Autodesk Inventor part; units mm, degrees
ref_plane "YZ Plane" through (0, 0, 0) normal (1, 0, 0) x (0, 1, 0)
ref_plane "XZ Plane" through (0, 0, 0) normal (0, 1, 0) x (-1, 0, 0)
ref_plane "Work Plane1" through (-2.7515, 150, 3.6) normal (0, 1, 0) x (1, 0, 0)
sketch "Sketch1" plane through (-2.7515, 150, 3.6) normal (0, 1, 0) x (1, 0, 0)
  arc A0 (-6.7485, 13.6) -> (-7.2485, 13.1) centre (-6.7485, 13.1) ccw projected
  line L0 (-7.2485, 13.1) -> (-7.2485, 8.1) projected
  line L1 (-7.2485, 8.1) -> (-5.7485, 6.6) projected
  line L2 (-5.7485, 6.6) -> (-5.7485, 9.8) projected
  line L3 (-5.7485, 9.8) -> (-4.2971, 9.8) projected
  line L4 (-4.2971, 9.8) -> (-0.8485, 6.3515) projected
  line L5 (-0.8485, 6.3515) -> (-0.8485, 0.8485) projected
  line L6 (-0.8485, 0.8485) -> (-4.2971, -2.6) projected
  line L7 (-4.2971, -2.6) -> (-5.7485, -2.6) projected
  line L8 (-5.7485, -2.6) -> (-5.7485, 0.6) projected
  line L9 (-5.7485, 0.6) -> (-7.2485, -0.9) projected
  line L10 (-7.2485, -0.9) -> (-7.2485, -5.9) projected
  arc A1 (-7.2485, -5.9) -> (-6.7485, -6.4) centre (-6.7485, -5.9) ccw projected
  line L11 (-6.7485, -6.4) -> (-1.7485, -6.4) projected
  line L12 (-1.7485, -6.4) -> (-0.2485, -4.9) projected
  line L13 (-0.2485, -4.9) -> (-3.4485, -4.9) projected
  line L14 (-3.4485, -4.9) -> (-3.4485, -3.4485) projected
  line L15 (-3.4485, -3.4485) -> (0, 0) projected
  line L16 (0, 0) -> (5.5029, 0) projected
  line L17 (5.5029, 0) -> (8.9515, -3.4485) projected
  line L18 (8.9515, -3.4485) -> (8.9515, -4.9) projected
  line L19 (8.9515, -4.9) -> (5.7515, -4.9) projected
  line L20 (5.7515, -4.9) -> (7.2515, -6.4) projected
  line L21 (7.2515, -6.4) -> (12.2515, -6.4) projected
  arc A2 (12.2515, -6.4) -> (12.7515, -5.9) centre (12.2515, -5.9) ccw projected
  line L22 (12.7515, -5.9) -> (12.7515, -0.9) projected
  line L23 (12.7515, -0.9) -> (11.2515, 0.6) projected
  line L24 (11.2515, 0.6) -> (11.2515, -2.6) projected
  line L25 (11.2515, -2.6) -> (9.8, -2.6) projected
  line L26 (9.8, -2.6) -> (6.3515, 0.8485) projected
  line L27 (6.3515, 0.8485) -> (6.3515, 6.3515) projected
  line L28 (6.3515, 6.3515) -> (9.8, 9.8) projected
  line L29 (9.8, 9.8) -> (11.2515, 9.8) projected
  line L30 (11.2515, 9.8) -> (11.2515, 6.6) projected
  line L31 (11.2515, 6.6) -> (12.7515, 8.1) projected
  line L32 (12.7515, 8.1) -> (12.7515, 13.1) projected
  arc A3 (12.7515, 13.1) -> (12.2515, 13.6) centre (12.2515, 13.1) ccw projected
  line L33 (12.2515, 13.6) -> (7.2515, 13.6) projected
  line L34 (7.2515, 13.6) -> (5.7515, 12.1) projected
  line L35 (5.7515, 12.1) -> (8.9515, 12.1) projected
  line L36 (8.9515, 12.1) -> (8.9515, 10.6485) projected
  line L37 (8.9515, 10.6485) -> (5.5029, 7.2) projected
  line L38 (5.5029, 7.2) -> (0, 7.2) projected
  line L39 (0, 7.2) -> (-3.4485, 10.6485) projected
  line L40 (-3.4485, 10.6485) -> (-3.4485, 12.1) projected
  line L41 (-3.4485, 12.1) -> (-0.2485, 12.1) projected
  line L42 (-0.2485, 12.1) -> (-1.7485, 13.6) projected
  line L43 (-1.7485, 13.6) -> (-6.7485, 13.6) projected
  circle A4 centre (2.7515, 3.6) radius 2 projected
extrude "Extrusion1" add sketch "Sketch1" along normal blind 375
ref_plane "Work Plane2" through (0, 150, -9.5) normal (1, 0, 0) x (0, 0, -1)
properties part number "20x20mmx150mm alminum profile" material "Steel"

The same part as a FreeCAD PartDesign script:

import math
import FreeCAD as App
import Part
import Sketcher
from FreeCAD import Vector

doc = App.newDocument("Part")
body = doc.addObject("PartDesign::Body", "Body")

# Sketch on XZ plane
sketch1 = body.newObject("Sketcher::SketchObject", "Sketch")
sketch1.AttachmentSupport = (doc.getObject("XZ_Plane"), [""])
sketch1.MapMode = "FlatFace"
sketch1.AttachmentOffset = App.Placement(Vector(0, 0, -150), App.Rotation())
sketch1.addGeometry(Part.LineSegment(Vector(-4.5, -10, 0), Vector(-9.5, -10, 0)), False)
sketch1.addGeometry(Part.ArcOfCircle(Part.Circle(Vector(-9.5, -9.5, 0), Vector(0, 0, 1), 0.5), math.radians(180), math.radians(270)), False)
sketch1.addGeometry(Part.LineSegment(Vector(-10, -9.5, 0), Vector(-10, -4.5, 0)), False)
sketch1.addGeometry(Part.LineSegment(Vector(-10, -4.5, 0), Vector(-8.5, -3, 0)), False)
sketch1.addGeometry(Part.LineSegment(Vector(-8.5, -3, 0), Vector(-8.5, -6.2, 0)), False)
sketch1.addGeometry(Part.LineSegment(Vector(-8.5, -6.2, 0), Vector(-7.0486, -6.2, 0)), False)
sketch1.addGeometry(Part.LineSegment(Vector(-7.0486, -6.2, 0), Vector(-3.6, -2.7515, 0)), False)
sketch1.addGeometry(Part.LineSegment(Vector(-3.6, -2.7515, 0), Vector(-3.6, 2.7515, 0)), False)
sketch1.addGeometry(Part.LineSegment(Vector(-3.6, 2.7515, 0), Vector(-7.0486, 6.2, 0)), False)
sketch1.addGeometry(Part.LineSegment(Vector(-7.0486, 6.2, 0), Vector(-8.5, 6.2, 0)), False)
sketch1.addGeometry(Part.LineSegment(Vector(-8.5, 6.2, 0), Vector(-8.5, 3, 0)), False)
sketch1.addGeometry(Part.LineSegment(Vector(-8.5, 3, 0), Vector(-10, 4.5, 0)), False)
sketch1.addGeometry(Part.LineSegment(Vector(-10, 4.5, 0), Vector(-10, 9.5, 0)), False)
sketch1.addGeometry(Part.ArcOfCircle(Part.Circle(Vector(-9.5, 9.5, 0), Vector(0, 0, 1), 0.5), math.radians(90), math.radians(180)), False)
sketch1.addGeometry(Part.LineSegment(Vector(-9.5, 10, 0), Vector(-4.5, 10, 0)), False)
sketch1.addGeometry(Part.LineSegment(Vector(-4.5, 10, 0), Vector(-3, 8.5, 0)), False)
sketch1.addGeometry(Part.LineSegment(Vector(-3, 8.5, 0), Vector(-6.2, 8.5, 0)), False)
sketch1.addGeometry(Part.LineSegment(Vector(-6.2, 8.5, 0), Vector(-6.2, 7.0485, 0)), False)
sketch1.addGeometry(Part.LineSegment(Vector(-6.2, 7.0485, 0), Vector(-2.7515, 3.6, 0)), False)
sketch1.addGeometry(Part.LineSegment(Vector(-2.7515, 3.6, 0), Vector(2.7514, 3.6, 0)), False)
sketch1.addGeometry(Part.LineSegment(Vector(2.7514, 3.6, 0), Vector(6.2, 7.0485, 0)), False)
sketch1.addGeometry(Part.LineSegment(Vector(6.2, 7.0485, 0), Vector(6.2, 8.5, 0)), False)
sketch1.addGeometry(Part.LineSegment(Vector(6.2, 8.5, 0), Vector(3, 8.5, 0)), False)
sketch1.addGeometry(Part.LineSegment(Vector(3, 8.5, 0), Vector(4.5, 10, 0)), False)
sketch1.addGeometry(Part.LineSegment(Vector(4.5, 10, 0), Vector(9.5, 10, 0)), False)
sketch1.addGeometry(Part.ArcOfCircle(Part.Circle(Vector(9.5, 9.5, 0), Vector(0, 0, 1), 0.5), math.radians(0), math.radians(90)), False)
sketch1.addGeometry(Part.LineSegment(Vector(10, 9.5, 0), Vector(10, 4.5, 0)), False)
sketch1.addGeometry(Part.LineSegment(Vector(10, 4.5, 0), Vector(8.5, 3, 0)), False)
sketch1.addGeometry(Part.LineSegment(Vector(8.5, 3, 0), Vector(8.5, 6.2, 0)), False)
sketch1.addGeometry(Part.LineSegment(Vector(8.5, 6.2, 0), Vector(7.0485, 6.2, 0)), False)
sketch1.addGeometry(Part.LineSegment(Vector(7.0485, 6.2, 0), Vector(3.6, 2.7515, 0)), False)
sketch1.addGeometry(Part.LineSegment(Vector(3.6, 2.7515, 0), Vector(3.6, -2.7515, 0)), False)
sketch1.addGeometry(Part.LineSegment(Vector(3.6, -2.7515, 0), Vector(7.0485, -6.2, 0)), False)
sketch1.addGeometry(Part.LineSegment(Vector(7.0485, -6.2, 0), Vector(8.5, -6.2, 0)), False)
sketch1.addGeometry(Part.LineSegment(Vector(8.5, -6.2, 0), Vector(8.5, -3, 0)), False)
sketch1.addGeometry(Part.LineSegment(Vector(8.5, -3, 0), Vector(10, -4.5, 0)), False)
sketch1.addGeometry(Part.LineSegment(Vector(10, -4.5, 0), Vector(10, -9.5, 0)), False)
sketch1.addGeometry(Part.ArcOfCircle(Part.Circle(Vector(9.5, -9.5, 0), Vector(0, 0, 1), 0.5), math.radians(-90), math.radians(0)), False)
sketch1.addGeometry(Part.LineSegment(Vector(9.5, -10, 0), Vector(4.5, -10, 0)), False)
sketch1.addGeometry(Part.LineSegment(Vector(4.5, -10, 0), Vector(3, -8.5, 0)), False)
sketch1.addGeometry(Part.LineSegment(Vector(3, -8.5, 0), Vector(6.2, -8.5, 0)), False)
sketch1.addGeometry(Part.LineSegment(Vector(6.2, -8.5, 0), Vector(6.2, -7.0485, 0)), False)
sketch1.addGeometry(Part.LineSegment(Vector(6.2, -7.0485, 0), Vector(2.7514, -3.6, 0)), False)
sketch1.addGeometry(Part.LineSegment(Vector(2.7514, -3.6, 0), Vector(-2.7515, -3.6, 0)), False)
sketch1.addGeometry(Part.LineSegment(Vector(-2.7515, -3.6, 0), Vector(-6.2, -7.0485, 0)), False)
sketch1.addGeometry(Part.LineSegment(Vector(-6.2, -7.0485, 0), Vector(-6.2, -8.5, 0)), False)
sketch1.addGeometry(Part.LineSegment(Vector(-6.2, -8.5, 0), Vector(-3, -8.5, 0)), False)
sketch1.addGeometry(Part.LineSegment(Vector(-3, -8.5, 0), Vector(-4.5, -10, 0)), False)
sketch1.addGeometry(Part.Circle(Vector(0, 0, 0), Vector(0, 0, 1), 2), False)
sketch1.addConstraint(Sketcher.Constraint("Tangent", 0, 2, 1, 2))
sketch1.addConstraint(Sketcher.Constraint("Tangent", 1, 1, 2, 1))
sketch1.addConstraint(Sketcher.Constraint("Coincident", 2, 2, 3, 1))
sketch1.addConstraint(Sketcher.Constraint("Coincident", 3, 2, 4, 1))
sketch1.addConstraint(Sketcher.Constraint("Coincident", 4, 2, 5, 1))
sketch1.addConstraint(Sketcher.Constraint("Coincident", 5, 2, 6, 1))
sketch1.addConstraint(Sketcher.Constraint("Coincident", 6, 2, 7, 1))
sketch1.addConstraint(Sketcher.Constraint("Coincident", 7, 2, 8, 1))
sketch1.addConstraint(Sketcher.Constraint("Coincident", 8, 2, 9, 1))
sketch1.addConstraint(Sketcher.Constraint("Coincident", 9, 2, 10, 1))
sketch1.addConstraint(Sketcher.Constraint("Coincident", 10, 2, 11, 1))
sketch1.addConstraint(Sketcher.Constraint("Coincident", 11, 2, 12, 1))
sketch1.addConstraint(Sketcher.Constraint("Tangent", 12, 2, 13, 2))
sketch1.addConstraint(Sketcher.Constraint("Tangent", 13, 1, 14, 1))
sketch1.addConstraint(Sketcher.Constraint("Coincident", 14, 2, 15, 1))
sketch1.addConstraint(Sketcher.Constraint("Coincident", 15, 2, 16, 1))
sketch1.addConstraint(Sketcher.Constraint("Coincident", 16, 2, 17, 1))
sketch1.addConstraint(Sketcher.Constraint("Coincident", 17, 2, 18, 1))
sketch1.addConstraint(Sketcher.Constraint("Coincident", 18, 2, 19, 1))
sketch1.addConstraint(Sketcher.Constraint("Coincident", 19, 2, 20, 1))
sketch1.addConstraint(Sketcher.Constraint("Coincident", 20, 2, 21, 1))
sketch1.addConstraint(Sketcher.Constraint("Coincident", 21, 2, 22, 1))
sketch1.addConstraint(Sketcher.Constraint("Coincident", 22, 2, 23, 1))
sketch1.addConstraint(Sketcher.Constraint("Coincident", 23, 2, 24, 1))
sketch1.addConstraint(Sketcher.Constraint("Tangent", 24, 2, 25, 2))
sketch1.addConstraint(Sketcher.Constraint("Tangent", 25, 1, 26, 1))
sketch1.addConstraint(Sketcher.Constraint("Coincident", 26, 2, 27, 1))
sketch1.addConstraint(Sketcher.Constraint("Coincident", 27, 2, 28, 1))
sketch1.addConstraint(Sketcher.Constraint("Coincident", 28, 2, 29, 1))
sketch1.addConstraint(Sketcher.Constraint("Coincident", 29, 2, 30, 1))
sketch1.addConstraint(Sketcher.Constraint("Coincident", 30, 2, 31, 1))
sketch1.addConstraint(Sketcher.Constraint("Coincident", 31, 2, 32, 1))
sketch1.addConstraint(Sketcher.Constraint("Coincident", 32, 2, 33, 1))
sketch1.addConstraint(Sketcher.Constraint("Coincident", 33, 2, 34, 1))
sketch1.addConstraint(Sketcher.Constraint("Coincident", 34, 2, 35, 1))
sketch1.addConstraint(Sketcher.Constraint("Coincident", 35, 2, 36, 1))
sketch1.addConstraint(Sketcher.Constraint("Tangent", 36, 2, 37, 2))
sketch1.addConstraint(Sketcher.Constraint("Tangent", 37, 1, 38, 1))
sketch1.addConstraint(Sketcher.Constraint("Coincident", 38, 2, 39, 1))
sketch1.addConstraint(Sketcher.Constraint("Coincident", 39, 2, 40, 1))
sketch1.addConstraint(Sketcher.Constraint("Coincident", 40, 2, 41, 1))
sketch1.addConstraint(Sketcher.Constraint("Coincident", 41, 2, 42, 1))
sketch1.addConstraint(Sketcher.Constraint("Coincident", 42, 2, 43, 1))
sketch1.addConstraint(Sketcher.Constraint("Coincident", 43, 2, 44, 1))
sketch1.addConstraint(Sketcher.Constraint("Coincident", 44, 2, 45, 1))
sketch1.addConstraint(Sketcher.Constraint("Coincident", 45, 2, 46, 1))
sketch1.addConstraint(Sketcher.Constraint("Coincident", 46, 2, 47, 1))
sketch1.addConstraint(Sketcher.Constraint("Coincident", 47, 2, 0, 1))
sketch1.addConstraint(Sketcher.Constraint("Horizontal", 0))
sketch1.addConstraint(Sketcher.Constraint("Vertical", 2))
sketch1.addConstraint(Sketcher.Constraint("Vertical", 4))
sketch1.addConstraint(Sketcher.Constraint("Horizontal", 5))
sketch1.addConstraint(Sketcher.Constraint("Vertical", 7))
sketch1.addConstraint(Sketcher.Constraint("Horizontal", 9))
sketch1.addConstraint(Sketcher.Constraint("Vertical", 10))
sketch1.addConstraint(Sketcher.Constraint("Vertical", 12))
sketch1.addConstraint(Sketcher.Constraint("Horizontal", 14))
sketch1.addConstraint(Sketcher.Constraint("Horizontal", 16))
sketch1.addConstraint(Sketcher.Constraint("Vertical", 17))
sketch1.addConstraint(Sketcher.Constraint("Horizontal", 19))
sketch1.addConstraint(Sketcher.Constraint("Vertical", 21))
sketch1.addConstraint(Sketcher.Constraint("Horizontal", 22))
sketch1.addConstraint(Sketcher.Constraint("Horizontal", 24))
sketch1.addConstraint(Sketcher.Constraint("Vertical", 26))
sketch1.addConstraint(Sketcher.Constraint("Vertical", 28))
sketch1.addConstraint(Sketcher.Constraint("Horizontal", 29))
sketch1.addConstraint(Sketcher.Constraint("Vertical", 31))
sketch1.addConstraint(Sketcher.Constraint("Horizontal", 33))
sketch1.addConstraint(Sketcher.Constraint("Vertical", 34))
sketch1.addConstraint(Sketcher.Constraint("Vertical", 36))
sketch1.addConstraint(Sketcher.Constraint("Horizontal", 38))
sketch1.addConstraint(Sketcher.Constraint("Horizontal", 40))
sketch1.addConstraint(Sketcher.Constraint("Vertical", 41))
sketch1.addConstraint(Sketcher.Constraint("Horizontal", 43))
sketch1.addConstraint(Sketcher.Constraint("Vertical", 45))
sketch1.addConstraint(Sketcher.Constraint("Horizontal", 46))
sketch1.addConstraint(Sketcher.Constraint("Coincident", 48, 3, -1, 1))
sketch1.addConstraint(Sketcher.Constraint("Equal", 1, 13))
sketch1.addConstraint(Sketcher.Constraint("Equal", 13, 25))
sketch1.addConstraint(Sketcher.Constraint("Equal", 25, 37))
sketch1.addConstraint(Sketcher.Constraint("Symmetric", 1, 3, 25, 3, -1, 1))
sketch1.addConstraint(Sketcher.Constraint("Symmetric", 13, 3, 37, 3, -1, 1))
sketch1.addConstraint(Sketcher.Constraint("Symmetric", 3, 2, 27, 2, -1, 1))
sketch1.addConstraint(Sketcher.Constraint("Symmetric", 5, 2, 29, 2, -1, 1))
sketch1.addConstraint(Sketcher.Constraint("Symmetric", 6, 2, 30, 2, -1, 1))
sketch1.addConstraint(Sketcher.Constraint("Symmetric", 8, 2, 32, 2, -1, 1))
sketch1.addConstraint(Sketcher.Constraint("Symmetric", 10, 2, 34, 2, -1, 1))
sketch1.addConstraint(Sketcher.Constraint("Symmetric", 15, 2, 39, 2, -1, 1))
sketch1.addConstraint(Sketcher.Constraint("Symmetric", 17, 2, 41, 2, -1, 1))
sketch1.addConstraint(Sketcher.Constraint("Symmetric", 18, 2, 42, 2, -1, 1))
sketch1.addConstraint(Sketcher.Constraint("Symmetric", 20, 2, 44, 2, -1, 1))
sketch1.addConstraint(Sketcher.Constraint("Symmetric", 22, 2, 46, 2, -1, 1))
sketch1.addConstraint(Sketcher.Constraint("Symmetric", 13, 3, 25, 3, -2))
sketch1.addConstraint(Sketcher.Constraint("Symmetric", 17, 2, 20, 2, -2))
sketch1.addConstraint(Sketcher.Constraint("Symmetric", 15, 2, 22, 2, -2))
sketch1.addConstraint(Sketcher.Constraint("Symmetric", 10, 2, 27, 2, -2))
sketch1.addConstraint(Sketcher.Constraint("Symmetric", 8, 2, 29, 2, -2))
sketch1.addConstraint(Sketcher.Constraint("Parallel", 3, 6))
sketch1.addConstraint(Sketcher.Constraint("Perpendicular", 6, 8))
sketch1.addConstraint(Sketcher.Constraint("Parallel", 8, 11))
sketch1.addConstraint(Sketcher.Constraint("Parallel", 11, 15))
sketch1.addConstraint(Sketcher.Constraint("Parallel", 15, 18))
sketch1.addConstraint(Sketcher.Constraint("Perpendicular", 18, 20))
sketch1.addConstraint(Sketcher.Constraint("Parallel", 20, 23))
sketch1.addConstraint(Sketcher.Constraint("Parallel", 23, 27))
sketch1.addConstraint(Sketcher.Constraint("Perpendicular", 30, 32))
sketch1.addConstraint(Sketcher.Constraint("Parallel", 32, 35))
sketch1.addConstraint(Sketcher.Constraint("Parallel", 35, 39))
sketch1.addConstraint(Sketcher.Constraint("Perpendicular", 42, 44))
sketch1.addConstraint(Sketcher.Constraint("Parallel", 44, 47))
sketch1.addConstraint(Sketcher.Constraint("Horizontal", 11, 2, 26, 2))
sketch1.addConstraint(Sketcher.Constraint("Equal", 38, 2))
sketch1.addConstraint(Sketcher.Constraint("Equal", 46, 4))
sketch1.addConstraint(Sketcher.Constraint("Equal", 43, 7))
sketch1.addConstraint(Sketcher.Constraint("Equal", 33, 17))
sketch1.addConstraint(Sketcher.Constraint("Equal", 11, 15))
sketch1.addConstraint(Sketcher.Constraint("Equal", 8, 18))
sketch1.addConstraint(Sketcher.Constraint("Diameter", 48, 4.0))
sketch1.addConstraint(Sketcher.Constraint("Radius", 1, 0.5))
sketch1.addConstraint(Sketcher.Constraint("DistanceX", 0, 2, 0, 1, 5.0))
sketch1.addConstraint(Sketcher.Constraint("DistanceX", 16, 2, 16, 1, 3.2))
sketch1.addConstraint(Sketcher.Constraint("DistanceY", 0, 2, -1, 1, 10.0))
sketch1.addConstraint(Sketcher.Constraint("DistanceY", 3, 2, -1, 1, 3.0))
sketch1.addConstraint(Sketcher.Constraint("DistanceX", 6, 2, -1, 1, 3.6))
sketch1.addConstraint(Sketcher.Constraint("DistanceX", 19, 1, 19, 2, 5.503))
pad1 = body.newObject("PartDesign::Pad", "Pad")
pad1.Profile = sketch1
pad1.Length = 375
pad1.Reversed = True

doc.recompute()
